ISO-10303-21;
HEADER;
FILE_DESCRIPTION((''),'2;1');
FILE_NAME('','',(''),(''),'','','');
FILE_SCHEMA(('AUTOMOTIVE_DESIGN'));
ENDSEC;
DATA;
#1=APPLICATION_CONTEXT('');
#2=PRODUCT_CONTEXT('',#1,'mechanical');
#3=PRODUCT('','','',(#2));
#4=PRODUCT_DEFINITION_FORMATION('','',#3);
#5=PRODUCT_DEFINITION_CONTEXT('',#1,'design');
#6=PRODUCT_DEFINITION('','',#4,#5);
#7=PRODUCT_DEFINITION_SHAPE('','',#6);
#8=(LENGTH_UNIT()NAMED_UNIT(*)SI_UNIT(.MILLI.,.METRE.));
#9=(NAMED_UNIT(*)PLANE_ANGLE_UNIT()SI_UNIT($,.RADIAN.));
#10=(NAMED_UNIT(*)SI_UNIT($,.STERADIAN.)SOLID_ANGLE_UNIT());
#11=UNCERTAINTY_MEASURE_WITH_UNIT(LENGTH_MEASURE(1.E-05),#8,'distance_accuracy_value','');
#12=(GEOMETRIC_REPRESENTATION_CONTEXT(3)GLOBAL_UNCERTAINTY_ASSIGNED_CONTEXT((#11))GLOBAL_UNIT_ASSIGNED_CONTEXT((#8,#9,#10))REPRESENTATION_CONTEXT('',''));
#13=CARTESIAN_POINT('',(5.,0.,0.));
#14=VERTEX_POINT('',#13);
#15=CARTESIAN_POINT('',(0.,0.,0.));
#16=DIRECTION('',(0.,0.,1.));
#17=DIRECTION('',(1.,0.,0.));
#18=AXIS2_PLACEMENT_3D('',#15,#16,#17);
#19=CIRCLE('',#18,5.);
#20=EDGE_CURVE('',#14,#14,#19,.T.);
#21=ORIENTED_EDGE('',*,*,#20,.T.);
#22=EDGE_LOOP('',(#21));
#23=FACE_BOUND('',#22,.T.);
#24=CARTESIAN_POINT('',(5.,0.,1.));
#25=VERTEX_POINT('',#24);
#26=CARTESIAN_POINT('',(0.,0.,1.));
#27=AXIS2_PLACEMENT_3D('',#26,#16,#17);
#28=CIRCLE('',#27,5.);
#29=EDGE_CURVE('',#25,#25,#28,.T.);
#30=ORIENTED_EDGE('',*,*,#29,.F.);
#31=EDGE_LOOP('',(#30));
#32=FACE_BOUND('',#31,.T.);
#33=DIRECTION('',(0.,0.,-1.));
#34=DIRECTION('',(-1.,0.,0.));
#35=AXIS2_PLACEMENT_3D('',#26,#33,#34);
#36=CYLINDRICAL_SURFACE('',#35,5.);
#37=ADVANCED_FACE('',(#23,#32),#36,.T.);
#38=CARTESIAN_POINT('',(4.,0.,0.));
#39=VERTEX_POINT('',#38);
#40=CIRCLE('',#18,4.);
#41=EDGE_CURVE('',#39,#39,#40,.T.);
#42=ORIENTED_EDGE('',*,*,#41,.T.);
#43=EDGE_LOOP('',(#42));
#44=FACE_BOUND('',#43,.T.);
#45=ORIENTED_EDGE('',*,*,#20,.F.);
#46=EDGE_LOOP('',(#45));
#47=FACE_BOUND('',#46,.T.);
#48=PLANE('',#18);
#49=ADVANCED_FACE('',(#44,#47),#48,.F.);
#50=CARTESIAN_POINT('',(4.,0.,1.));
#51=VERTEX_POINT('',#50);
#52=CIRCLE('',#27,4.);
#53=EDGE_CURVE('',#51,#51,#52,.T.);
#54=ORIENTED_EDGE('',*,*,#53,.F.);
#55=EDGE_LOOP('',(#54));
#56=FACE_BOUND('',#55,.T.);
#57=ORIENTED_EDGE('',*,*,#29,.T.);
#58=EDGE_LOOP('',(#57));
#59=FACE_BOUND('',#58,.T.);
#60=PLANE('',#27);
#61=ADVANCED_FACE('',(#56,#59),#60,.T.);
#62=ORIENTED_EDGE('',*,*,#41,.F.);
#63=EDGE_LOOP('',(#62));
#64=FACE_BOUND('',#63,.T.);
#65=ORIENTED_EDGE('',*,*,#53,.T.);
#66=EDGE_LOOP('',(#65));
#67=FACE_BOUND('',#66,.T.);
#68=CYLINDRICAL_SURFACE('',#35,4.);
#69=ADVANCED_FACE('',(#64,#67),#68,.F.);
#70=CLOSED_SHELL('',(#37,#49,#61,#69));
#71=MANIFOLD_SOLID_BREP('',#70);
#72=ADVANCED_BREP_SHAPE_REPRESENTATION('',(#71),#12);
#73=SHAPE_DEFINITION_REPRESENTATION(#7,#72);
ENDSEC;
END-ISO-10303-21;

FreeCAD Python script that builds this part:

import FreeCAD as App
import Part
import Sketcher

doc = App.newDocument("Part")
params = doc.addObject("Spreadsheet::Sheet", "Params")
for row, (alias, value) in enumerate([
    ("sketch1_diameter", "10 mm"),
    ("sketch1_diameter2", "8 mm"),
    ("pad1_length", "1 mm"),
], start=1):
    params.set(f"A{row}", alias)
    params.set(f"B{row}", "=" + value)
    params.setAlias(f"B{row}", alias)

body = doc.addObject("PartDesign::Body", "Body")

sketch1 = doc.addObject("Sketcher::SketchObject", "Sketch")
body.addObject(sketch1)
sketch1.AttachmentSupport = (doc.XY_Plane, [""])
sketch1.MapMode = "FlatFace"
sketch1.addGeometry(Part.Circle(App.Vector(0, 0, 0), App.Vector(0, 0, 1), 5), False)
sketch1.addGeometry(Part.Circle(App.Vector(0, 0, 0), App.Vector(0, 0, 1), 4), False)
sketch1.addConstraint(Sketcher.Constraint("Coincident", 0, 3, -1, 1))
sketch1.addConstraint(Sketcher.Constraint("Coincident", 1, 3, -1, 1))
sketch1.addConstraint(Sketcher.Constraint("Diameter", 0, 10.0))
sketch1.addConstraint(Sketcher.Constraint("Diameter", 1, 8.0))
sketch1.setExpression("Constraints[2]", "Params.sketch1_diameter")
sketch1.setExpression("Constraints[3]", "Params.sketch1_diameter2")
pad1 = doc.addObject("PartDesign::Pad", "Pad")
body.addObject(pad1)
pad1.Profile = sketch1
pad1.setExpression("Length", "Params.pad1_length")

doc.recompute()
